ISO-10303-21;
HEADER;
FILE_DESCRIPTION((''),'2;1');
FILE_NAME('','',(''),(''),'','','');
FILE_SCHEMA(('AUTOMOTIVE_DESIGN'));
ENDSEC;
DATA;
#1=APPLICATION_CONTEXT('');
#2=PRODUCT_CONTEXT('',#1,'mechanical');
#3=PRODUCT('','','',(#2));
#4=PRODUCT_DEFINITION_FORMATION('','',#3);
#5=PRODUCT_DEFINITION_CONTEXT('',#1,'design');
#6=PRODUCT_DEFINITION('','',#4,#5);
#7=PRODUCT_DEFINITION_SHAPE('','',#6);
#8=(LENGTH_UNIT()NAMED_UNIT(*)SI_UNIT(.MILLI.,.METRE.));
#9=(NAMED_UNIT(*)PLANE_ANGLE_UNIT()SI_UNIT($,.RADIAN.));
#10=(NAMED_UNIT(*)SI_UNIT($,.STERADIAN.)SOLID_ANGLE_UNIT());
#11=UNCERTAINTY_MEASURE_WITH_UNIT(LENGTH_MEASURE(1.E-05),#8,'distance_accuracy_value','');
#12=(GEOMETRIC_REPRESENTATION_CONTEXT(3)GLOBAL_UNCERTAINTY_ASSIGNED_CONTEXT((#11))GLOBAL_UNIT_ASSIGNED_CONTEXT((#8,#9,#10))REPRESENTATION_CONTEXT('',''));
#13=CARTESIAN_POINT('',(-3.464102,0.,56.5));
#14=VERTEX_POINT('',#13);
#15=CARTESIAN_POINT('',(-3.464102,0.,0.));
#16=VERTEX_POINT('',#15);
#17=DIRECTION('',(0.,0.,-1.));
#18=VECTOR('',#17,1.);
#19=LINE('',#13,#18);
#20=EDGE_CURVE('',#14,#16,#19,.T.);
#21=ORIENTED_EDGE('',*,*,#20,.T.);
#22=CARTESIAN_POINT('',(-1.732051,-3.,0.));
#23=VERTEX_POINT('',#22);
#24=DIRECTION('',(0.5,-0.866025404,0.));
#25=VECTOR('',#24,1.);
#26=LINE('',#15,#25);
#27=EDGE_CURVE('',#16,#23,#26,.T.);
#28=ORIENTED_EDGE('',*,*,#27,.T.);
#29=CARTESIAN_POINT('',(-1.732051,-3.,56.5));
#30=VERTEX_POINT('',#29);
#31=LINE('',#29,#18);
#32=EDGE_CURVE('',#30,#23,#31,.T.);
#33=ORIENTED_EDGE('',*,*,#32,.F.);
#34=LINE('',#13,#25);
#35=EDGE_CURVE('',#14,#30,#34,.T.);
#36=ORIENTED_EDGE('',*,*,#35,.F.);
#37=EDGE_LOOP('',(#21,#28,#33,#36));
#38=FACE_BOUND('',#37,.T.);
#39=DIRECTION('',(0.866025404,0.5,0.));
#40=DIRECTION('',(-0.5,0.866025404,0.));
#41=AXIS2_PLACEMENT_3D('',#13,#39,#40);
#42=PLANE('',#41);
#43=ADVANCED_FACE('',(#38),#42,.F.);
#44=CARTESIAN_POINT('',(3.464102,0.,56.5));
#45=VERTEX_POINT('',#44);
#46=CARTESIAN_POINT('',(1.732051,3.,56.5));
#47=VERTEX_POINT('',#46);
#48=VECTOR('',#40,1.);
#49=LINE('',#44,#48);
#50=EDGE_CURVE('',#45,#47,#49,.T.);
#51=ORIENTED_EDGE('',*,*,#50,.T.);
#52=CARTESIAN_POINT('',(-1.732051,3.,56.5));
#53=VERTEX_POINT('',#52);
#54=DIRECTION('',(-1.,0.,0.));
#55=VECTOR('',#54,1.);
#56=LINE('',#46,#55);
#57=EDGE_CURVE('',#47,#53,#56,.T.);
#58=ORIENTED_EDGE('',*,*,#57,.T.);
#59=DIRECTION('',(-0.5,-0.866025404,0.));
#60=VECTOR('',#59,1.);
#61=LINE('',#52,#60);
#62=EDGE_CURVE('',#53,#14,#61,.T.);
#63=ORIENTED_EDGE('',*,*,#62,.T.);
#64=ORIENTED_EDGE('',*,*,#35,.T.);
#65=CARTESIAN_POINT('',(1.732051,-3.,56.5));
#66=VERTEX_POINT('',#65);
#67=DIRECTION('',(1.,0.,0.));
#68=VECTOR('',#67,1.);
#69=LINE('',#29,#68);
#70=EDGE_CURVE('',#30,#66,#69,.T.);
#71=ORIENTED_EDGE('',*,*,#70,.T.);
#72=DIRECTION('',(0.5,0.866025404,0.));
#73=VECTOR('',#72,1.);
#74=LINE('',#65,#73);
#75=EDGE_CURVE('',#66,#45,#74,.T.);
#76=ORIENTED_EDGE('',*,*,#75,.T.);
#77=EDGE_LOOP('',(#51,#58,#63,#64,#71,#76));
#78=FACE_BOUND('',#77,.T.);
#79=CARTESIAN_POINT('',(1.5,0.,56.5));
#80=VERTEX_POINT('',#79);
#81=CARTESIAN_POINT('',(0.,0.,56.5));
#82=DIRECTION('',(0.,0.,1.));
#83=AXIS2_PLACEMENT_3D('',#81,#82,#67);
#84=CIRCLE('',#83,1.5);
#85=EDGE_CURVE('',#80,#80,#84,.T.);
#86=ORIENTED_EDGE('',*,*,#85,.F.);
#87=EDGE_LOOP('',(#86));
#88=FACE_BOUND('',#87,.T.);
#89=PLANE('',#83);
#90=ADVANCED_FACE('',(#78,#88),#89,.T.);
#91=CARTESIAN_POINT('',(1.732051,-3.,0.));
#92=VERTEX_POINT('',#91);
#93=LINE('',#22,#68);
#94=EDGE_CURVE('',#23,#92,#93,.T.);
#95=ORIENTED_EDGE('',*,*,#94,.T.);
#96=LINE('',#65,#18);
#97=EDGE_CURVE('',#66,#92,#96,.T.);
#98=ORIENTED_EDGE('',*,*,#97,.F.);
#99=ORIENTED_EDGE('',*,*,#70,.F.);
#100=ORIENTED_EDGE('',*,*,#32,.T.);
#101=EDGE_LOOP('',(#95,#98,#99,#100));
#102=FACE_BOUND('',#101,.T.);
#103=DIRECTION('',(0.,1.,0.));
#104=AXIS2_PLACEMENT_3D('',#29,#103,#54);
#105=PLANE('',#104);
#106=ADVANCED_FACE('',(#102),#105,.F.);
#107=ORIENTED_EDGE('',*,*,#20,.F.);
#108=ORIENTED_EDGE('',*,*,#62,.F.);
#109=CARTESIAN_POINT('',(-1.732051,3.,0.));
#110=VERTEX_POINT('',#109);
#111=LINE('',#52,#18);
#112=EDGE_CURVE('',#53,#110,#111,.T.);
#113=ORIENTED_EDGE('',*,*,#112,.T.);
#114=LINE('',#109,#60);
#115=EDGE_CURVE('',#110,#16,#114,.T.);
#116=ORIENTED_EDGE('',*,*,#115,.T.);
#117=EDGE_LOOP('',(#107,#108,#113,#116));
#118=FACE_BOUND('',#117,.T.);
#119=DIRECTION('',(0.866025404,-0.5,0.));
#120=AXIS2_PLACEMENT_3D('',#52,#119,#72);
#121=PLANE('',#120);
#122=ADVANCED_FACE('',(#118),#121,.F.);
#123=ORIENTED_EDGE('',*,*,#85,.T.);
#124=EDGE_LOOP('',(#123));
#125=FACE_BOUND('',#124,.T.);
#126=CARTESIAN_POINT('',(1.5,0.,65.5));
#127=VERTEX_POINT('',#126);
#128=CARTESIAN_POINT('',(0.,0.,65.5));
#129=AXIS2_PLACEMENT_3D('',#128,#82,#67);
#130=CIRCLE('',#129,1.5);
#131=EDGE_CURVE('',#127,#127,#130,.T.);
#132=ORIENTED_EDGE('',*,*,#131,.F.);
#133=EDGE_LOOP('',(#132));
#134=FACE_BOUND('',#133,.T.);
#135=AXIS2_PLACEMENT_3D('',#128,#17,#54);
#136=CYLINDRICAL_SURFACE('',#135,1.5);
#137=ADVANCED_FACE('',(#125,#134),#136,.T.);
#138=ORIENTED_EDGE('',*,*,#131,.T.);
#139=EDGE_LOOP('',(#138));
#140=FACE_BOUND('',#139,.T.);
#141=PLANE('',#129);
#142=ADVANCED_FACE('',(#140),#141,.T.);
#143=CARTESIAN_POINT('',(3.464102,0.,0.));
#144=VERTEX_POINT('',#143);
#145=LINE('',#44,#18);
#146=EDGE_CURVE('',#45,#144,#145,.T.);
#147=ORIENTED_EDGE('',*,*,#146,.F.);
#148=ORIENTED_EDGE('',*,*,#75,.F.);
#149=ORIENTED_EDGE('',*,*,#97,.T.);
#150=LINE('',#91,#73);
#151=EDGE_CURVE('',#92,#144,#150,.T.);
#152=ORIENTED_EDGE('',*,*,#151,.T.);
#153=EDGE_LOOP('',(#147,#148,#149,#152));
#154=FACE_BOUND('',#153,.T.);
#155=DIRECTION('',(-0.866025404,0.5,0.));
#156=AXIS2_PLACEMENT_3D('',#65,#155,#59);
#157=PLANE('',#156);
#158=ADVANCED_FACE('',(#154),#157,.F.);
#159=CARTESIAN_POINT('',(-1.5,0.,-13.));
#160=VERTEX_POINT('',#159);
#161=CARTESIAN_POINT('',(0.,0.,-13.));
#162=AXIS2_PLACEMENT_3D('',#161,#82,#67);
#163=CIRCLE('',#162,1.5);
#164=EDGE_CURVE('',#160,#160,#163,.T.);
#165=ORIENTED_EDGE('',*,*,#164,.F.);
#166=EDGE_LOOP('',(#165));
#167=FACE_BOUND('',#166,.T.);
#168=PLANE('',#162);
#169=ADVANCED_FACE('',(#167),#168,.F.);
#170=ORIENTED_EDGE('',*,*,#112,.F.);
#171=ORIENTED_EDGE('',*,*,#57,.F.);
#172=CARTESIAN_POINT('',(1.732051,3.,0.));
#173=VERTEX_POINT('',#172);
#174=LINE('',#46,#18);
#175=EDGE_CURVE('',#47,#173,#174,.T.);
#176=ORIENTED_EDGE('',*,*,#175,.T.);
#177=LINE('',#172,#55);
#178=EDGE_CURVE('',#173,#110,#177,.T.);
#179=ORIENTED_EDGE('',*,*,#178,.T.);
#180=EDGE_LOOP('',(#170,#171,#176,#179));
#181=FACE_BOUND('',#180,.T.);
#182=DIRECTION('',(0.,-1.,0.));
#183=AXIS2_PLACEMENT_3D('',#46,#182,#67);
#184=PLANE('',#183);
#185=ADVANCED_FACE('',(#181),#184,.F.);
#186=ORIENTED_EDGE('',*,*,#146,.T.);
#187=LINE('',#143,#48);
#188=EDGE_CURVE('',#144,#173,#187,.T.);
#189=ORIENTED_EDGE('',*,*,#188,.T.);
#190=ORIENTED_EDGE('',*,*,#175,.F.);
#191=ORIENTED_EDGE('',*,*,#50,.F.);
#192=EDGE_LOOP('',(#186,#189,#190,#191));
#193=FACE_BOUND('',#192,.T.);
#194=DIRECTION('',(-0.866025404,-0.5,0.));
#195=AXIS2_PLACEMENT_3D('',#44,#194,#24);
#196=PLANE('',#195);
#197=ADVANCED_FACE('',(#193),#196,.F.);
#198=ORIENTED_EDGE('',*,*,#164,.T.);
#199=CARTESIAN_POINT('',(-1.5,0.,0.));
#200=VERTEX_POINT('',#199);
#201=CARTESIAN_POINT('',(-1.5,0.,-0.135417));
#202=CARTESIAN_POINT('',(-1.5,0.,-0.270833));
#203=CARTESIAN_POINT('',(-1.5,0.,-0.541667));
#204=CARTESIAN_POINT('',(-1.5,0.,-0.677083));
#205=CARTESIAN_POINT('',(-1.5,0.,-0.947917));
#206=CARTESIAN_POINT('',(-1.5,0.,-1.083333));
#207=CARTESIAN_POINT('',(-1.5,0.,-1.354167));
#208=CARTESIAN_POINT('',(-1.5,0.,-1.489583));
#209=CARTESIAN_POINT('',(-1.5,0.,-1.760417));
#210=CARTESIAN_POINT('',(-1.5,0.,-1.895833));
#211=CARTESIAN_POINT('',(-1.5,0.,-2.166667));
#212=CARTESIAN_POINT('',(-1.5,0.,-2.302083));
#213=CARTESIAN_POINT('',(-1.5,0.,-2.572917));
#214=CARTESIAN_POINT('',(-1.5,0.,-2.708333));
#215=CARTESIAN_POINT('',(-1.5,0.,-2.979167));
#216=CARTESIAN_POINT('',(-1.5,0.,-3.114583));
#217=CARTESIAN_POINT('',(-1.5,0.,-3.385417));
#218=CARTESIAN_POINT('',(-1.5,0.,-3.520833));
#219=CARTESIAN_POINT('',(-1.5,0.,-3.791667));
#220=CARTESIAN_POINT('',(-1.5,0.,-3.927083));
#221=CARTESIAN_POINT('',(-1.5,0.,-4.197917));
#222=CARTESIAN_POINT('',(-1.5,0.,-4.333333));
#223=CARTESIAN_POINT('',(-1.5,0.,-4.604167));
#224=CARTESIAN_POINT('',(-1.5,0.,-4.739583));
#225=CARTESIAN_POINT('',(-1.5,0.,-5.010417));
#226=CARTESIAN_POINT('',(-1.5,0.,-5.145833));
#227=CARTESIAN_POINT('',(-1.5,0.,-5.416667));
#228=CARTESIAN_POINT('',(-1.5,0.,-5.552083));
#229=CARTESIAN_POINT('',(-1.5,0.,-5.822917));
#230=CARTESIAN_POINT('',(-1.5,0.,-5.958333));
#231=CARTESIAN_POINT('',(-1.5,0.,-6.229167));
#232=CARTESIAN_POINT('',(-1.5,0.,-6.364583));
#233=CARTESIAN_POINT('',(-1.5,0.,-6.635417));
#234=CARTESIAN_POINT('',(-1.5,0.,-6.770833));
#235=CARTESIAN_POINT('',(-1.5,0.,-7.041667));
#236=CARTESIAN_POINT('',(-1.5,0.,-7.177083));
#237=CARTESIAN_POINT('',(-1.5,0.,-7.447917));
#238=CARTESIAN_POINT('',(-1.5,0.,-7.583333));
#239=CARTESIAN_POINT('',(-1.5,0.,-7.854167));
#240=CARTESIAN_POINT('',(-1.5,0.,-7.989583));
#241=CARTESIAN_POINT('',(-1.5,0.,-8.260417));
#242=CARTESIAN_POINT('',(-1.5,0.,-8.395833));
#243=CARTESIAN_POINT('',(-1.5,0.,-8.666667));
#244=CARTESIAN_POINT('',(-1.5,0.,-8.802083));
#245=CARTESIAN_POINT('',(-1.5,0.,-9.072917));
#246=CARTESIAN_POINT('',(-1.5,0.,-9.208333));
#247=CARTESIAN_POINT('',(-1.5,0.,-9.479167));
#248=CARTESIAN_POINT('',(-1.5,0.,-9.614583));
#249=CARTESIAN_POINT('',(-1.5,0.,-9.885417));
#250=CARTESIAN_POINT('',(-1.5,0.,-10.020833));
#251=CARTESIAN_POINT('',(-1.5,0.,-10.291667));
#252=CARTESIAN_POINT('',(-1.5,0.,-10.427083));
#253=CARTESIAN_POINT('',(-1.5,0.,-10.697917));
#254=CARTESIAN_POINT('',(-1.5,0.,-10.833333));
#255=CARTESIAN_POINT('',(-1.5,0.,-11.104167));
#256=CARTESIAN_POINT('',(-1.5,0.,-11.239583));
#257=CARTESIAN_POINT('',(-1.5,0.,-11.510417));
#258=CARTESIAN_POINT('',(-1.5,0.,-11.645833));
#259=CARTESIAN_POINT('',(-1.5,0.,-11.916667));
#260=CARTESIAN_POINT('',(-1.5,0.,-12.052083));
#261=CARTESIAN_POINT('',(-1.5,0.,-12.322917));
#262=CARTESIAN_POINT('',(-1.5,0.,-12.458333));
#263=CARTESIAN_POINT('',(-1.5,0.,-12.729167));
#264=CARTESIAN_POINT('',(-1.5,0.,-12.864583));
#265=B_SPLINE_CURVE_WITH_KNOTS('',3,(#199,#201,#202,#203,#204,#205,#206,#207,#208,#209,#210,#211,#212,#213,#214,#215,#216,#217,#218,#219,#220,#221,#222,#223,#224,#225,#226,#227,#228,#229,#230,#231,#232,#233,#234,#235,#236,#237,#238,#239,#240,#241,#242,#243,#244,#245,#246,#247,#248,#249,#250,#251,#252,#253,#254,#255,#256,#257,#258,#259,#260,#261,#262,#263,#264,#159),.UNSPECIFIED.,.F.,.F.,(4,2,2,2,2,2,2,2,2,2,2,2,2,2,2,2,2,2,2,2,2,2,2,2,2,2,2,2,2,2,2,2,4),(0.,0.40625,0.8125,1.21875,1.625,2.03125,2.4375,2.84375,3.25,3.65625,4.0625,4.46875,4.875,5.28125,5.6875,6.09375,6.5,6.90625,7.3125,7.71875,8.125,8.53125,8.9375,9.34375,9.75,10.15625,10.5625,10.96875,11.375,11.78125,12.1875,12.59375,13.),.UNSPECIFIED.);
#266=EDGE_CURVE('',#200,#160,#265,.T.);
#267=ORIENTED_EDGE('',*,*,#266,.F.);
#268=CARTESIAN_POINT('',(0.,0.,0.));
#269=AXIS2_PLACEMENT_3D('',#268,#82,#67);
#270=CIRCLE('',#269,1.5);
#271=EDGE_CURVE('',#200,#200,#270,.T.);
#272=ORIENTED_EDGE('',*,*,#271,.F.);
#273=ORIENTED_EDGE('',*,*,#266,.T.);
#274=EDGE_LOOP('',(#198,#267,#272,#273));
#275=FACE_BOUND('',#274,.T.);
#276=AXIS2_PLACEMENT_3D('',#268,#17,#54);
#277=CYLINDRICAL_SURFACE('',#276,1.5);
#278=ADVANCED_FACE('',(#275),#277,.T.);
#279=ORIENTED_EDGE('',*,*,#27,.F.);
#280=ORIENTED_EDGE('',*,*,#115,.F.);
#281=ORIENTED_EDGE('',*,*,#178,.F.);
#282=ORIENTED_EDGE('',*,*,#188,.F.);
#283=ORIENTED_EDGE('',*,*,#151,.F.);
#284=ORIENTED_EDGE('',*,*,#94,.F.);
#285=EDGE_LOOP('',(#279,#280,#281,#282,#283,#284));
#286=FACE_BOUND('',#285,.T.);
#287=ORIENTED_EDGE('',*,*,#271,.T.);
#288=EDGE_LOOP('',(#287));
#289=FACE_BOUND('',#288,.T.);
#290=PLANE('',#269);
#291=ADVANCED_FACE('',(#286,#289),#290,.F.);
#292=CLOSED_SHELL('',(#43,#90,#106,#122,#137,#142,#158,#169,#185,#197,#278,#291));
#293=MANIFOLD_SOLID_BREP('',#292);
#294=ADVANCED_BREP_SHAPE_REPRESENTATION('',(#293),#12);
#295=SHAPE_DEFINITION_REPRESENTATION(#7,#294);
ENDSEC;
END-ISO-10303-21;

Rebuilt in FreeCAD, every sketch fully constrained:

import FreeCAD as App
import Part
import Sketcher

V = App.Vector
Q = App.Units.Quantity


def add_polygon(sketch, points):
    """Adds a closed chain of lines whose ends are joined by coincident constraints."""
    first, n = sketch.GeometryCount, len(points)
    for a, b in zip(points, points[1:] + points[:1]):
        sketch.addGeometry(Part.LineSegment(App.Vector(*a, 0), App.Vector(*b, 0)), False)
    for i in range(n):
        sketch.addConstraint(Sketcher.Constraint("Coincident", first + i, 2, first + (i + 1) % n, 1))

doc = App.newDocument("Part")
body = doc.addObject("PartDesign::Body", "Body")

# Sketch on XY plane
sketch1 = body.newObject("Sketcher::SketchObject", "Sketch")
sketch1.AttachmentSupport = (doc.getObject("XY_Plane"), [""])
sketch1.MapMode = "FlatFace"
add_polygon(sketch1, [(3.464102, 0), (1.732051, 3), (-1.732051, 3), (-3.464102, 0), (-1.732051, -3), (1.732051, -3)])  # lines 0-5
sketch1.addConstraint([
    Sketcher.Constraint("Horizontal", 1),
    Sketcher.Constraint("Horizontal", 4),
    Sketcher.Constraint("Symmetric", 0, 2, 3, 2, -1, 1),
    Sketcher.Constraint("Symmetric", 2, 2, 5, 2, -1, 1),
    Sketcher.Constraint("PointOnObject", 2, 2, -1),
    Sketcher.Constraint("Parallel", 2, 5),
    Sketcher.Constraint("Vertical", 1, 2, 3, 2),
    Sketcher.Constraint("Angle", 0, Q("120 deg")),
    Sketcher.Constraint("DistanceY", -1, 1, 0, 2, 3.0),
    Sketcher.Constraint("DistanceX", 1, 2, 1, 1, 3.464102),
])
pad1 = body.newObject("PartDesign::Pad", "Pad")
pad1.Profile = sketch1
pad1.Length = 56.5

# Sketch on XY plane
sketch2 = body.newObject("Sketcher::SketchObject", "Sketch001")
sketch2.AttachmentSupport = (doc.getObject("XY_Plane"), [""])
sketch2.MapMode = "FlatFace"
sketch2.AttachmentOffset = App.Placement(V(0, 0, -13), App.Rotation())
sketch2.addGeometry(Part.Circle(V(0, 0, 0), V(0, 0, 1), 1.5), False)
sketch2.addConstraint([
    Sketcher.Constraint("Coincident", 0, 3, -1, 1),
    Sketcher.Constraint("Diameter", 0, 3.0),
])
pad2 = body.newObject("PartDesign::Pad", "Pad001")
pad2.Profile = sketch2
pad2.Length = 13

# Sketch on XY plane
sketch3 = body.newObject("Sketcher::SketchObject", "Sketch002")
sketch3.AttachmentSupport = (doc.getObject("XY_Plane"), [""])
sketch3.MapMode = "FlatFace"
sketch3.AttachmentOffset = App.Placement(V(0, 0, 56.5), App.Rotation())
sketch3.addGeometry(Part.Circle(V(0, 0, 0), V(0, 0, 1), 1.5), False)
sketch3.addConstraint([
    Sketcher.Constraint("Coincident", 0, 3, -1, 1),
    Sketcher.Constraint("Diameter", 0, 3.0),
])
pad3 = body.newObject("PartDesign::Pad", "Pad002")
pad3.Profile = sketch3
pad3.Length = 9

doc.recompute()
